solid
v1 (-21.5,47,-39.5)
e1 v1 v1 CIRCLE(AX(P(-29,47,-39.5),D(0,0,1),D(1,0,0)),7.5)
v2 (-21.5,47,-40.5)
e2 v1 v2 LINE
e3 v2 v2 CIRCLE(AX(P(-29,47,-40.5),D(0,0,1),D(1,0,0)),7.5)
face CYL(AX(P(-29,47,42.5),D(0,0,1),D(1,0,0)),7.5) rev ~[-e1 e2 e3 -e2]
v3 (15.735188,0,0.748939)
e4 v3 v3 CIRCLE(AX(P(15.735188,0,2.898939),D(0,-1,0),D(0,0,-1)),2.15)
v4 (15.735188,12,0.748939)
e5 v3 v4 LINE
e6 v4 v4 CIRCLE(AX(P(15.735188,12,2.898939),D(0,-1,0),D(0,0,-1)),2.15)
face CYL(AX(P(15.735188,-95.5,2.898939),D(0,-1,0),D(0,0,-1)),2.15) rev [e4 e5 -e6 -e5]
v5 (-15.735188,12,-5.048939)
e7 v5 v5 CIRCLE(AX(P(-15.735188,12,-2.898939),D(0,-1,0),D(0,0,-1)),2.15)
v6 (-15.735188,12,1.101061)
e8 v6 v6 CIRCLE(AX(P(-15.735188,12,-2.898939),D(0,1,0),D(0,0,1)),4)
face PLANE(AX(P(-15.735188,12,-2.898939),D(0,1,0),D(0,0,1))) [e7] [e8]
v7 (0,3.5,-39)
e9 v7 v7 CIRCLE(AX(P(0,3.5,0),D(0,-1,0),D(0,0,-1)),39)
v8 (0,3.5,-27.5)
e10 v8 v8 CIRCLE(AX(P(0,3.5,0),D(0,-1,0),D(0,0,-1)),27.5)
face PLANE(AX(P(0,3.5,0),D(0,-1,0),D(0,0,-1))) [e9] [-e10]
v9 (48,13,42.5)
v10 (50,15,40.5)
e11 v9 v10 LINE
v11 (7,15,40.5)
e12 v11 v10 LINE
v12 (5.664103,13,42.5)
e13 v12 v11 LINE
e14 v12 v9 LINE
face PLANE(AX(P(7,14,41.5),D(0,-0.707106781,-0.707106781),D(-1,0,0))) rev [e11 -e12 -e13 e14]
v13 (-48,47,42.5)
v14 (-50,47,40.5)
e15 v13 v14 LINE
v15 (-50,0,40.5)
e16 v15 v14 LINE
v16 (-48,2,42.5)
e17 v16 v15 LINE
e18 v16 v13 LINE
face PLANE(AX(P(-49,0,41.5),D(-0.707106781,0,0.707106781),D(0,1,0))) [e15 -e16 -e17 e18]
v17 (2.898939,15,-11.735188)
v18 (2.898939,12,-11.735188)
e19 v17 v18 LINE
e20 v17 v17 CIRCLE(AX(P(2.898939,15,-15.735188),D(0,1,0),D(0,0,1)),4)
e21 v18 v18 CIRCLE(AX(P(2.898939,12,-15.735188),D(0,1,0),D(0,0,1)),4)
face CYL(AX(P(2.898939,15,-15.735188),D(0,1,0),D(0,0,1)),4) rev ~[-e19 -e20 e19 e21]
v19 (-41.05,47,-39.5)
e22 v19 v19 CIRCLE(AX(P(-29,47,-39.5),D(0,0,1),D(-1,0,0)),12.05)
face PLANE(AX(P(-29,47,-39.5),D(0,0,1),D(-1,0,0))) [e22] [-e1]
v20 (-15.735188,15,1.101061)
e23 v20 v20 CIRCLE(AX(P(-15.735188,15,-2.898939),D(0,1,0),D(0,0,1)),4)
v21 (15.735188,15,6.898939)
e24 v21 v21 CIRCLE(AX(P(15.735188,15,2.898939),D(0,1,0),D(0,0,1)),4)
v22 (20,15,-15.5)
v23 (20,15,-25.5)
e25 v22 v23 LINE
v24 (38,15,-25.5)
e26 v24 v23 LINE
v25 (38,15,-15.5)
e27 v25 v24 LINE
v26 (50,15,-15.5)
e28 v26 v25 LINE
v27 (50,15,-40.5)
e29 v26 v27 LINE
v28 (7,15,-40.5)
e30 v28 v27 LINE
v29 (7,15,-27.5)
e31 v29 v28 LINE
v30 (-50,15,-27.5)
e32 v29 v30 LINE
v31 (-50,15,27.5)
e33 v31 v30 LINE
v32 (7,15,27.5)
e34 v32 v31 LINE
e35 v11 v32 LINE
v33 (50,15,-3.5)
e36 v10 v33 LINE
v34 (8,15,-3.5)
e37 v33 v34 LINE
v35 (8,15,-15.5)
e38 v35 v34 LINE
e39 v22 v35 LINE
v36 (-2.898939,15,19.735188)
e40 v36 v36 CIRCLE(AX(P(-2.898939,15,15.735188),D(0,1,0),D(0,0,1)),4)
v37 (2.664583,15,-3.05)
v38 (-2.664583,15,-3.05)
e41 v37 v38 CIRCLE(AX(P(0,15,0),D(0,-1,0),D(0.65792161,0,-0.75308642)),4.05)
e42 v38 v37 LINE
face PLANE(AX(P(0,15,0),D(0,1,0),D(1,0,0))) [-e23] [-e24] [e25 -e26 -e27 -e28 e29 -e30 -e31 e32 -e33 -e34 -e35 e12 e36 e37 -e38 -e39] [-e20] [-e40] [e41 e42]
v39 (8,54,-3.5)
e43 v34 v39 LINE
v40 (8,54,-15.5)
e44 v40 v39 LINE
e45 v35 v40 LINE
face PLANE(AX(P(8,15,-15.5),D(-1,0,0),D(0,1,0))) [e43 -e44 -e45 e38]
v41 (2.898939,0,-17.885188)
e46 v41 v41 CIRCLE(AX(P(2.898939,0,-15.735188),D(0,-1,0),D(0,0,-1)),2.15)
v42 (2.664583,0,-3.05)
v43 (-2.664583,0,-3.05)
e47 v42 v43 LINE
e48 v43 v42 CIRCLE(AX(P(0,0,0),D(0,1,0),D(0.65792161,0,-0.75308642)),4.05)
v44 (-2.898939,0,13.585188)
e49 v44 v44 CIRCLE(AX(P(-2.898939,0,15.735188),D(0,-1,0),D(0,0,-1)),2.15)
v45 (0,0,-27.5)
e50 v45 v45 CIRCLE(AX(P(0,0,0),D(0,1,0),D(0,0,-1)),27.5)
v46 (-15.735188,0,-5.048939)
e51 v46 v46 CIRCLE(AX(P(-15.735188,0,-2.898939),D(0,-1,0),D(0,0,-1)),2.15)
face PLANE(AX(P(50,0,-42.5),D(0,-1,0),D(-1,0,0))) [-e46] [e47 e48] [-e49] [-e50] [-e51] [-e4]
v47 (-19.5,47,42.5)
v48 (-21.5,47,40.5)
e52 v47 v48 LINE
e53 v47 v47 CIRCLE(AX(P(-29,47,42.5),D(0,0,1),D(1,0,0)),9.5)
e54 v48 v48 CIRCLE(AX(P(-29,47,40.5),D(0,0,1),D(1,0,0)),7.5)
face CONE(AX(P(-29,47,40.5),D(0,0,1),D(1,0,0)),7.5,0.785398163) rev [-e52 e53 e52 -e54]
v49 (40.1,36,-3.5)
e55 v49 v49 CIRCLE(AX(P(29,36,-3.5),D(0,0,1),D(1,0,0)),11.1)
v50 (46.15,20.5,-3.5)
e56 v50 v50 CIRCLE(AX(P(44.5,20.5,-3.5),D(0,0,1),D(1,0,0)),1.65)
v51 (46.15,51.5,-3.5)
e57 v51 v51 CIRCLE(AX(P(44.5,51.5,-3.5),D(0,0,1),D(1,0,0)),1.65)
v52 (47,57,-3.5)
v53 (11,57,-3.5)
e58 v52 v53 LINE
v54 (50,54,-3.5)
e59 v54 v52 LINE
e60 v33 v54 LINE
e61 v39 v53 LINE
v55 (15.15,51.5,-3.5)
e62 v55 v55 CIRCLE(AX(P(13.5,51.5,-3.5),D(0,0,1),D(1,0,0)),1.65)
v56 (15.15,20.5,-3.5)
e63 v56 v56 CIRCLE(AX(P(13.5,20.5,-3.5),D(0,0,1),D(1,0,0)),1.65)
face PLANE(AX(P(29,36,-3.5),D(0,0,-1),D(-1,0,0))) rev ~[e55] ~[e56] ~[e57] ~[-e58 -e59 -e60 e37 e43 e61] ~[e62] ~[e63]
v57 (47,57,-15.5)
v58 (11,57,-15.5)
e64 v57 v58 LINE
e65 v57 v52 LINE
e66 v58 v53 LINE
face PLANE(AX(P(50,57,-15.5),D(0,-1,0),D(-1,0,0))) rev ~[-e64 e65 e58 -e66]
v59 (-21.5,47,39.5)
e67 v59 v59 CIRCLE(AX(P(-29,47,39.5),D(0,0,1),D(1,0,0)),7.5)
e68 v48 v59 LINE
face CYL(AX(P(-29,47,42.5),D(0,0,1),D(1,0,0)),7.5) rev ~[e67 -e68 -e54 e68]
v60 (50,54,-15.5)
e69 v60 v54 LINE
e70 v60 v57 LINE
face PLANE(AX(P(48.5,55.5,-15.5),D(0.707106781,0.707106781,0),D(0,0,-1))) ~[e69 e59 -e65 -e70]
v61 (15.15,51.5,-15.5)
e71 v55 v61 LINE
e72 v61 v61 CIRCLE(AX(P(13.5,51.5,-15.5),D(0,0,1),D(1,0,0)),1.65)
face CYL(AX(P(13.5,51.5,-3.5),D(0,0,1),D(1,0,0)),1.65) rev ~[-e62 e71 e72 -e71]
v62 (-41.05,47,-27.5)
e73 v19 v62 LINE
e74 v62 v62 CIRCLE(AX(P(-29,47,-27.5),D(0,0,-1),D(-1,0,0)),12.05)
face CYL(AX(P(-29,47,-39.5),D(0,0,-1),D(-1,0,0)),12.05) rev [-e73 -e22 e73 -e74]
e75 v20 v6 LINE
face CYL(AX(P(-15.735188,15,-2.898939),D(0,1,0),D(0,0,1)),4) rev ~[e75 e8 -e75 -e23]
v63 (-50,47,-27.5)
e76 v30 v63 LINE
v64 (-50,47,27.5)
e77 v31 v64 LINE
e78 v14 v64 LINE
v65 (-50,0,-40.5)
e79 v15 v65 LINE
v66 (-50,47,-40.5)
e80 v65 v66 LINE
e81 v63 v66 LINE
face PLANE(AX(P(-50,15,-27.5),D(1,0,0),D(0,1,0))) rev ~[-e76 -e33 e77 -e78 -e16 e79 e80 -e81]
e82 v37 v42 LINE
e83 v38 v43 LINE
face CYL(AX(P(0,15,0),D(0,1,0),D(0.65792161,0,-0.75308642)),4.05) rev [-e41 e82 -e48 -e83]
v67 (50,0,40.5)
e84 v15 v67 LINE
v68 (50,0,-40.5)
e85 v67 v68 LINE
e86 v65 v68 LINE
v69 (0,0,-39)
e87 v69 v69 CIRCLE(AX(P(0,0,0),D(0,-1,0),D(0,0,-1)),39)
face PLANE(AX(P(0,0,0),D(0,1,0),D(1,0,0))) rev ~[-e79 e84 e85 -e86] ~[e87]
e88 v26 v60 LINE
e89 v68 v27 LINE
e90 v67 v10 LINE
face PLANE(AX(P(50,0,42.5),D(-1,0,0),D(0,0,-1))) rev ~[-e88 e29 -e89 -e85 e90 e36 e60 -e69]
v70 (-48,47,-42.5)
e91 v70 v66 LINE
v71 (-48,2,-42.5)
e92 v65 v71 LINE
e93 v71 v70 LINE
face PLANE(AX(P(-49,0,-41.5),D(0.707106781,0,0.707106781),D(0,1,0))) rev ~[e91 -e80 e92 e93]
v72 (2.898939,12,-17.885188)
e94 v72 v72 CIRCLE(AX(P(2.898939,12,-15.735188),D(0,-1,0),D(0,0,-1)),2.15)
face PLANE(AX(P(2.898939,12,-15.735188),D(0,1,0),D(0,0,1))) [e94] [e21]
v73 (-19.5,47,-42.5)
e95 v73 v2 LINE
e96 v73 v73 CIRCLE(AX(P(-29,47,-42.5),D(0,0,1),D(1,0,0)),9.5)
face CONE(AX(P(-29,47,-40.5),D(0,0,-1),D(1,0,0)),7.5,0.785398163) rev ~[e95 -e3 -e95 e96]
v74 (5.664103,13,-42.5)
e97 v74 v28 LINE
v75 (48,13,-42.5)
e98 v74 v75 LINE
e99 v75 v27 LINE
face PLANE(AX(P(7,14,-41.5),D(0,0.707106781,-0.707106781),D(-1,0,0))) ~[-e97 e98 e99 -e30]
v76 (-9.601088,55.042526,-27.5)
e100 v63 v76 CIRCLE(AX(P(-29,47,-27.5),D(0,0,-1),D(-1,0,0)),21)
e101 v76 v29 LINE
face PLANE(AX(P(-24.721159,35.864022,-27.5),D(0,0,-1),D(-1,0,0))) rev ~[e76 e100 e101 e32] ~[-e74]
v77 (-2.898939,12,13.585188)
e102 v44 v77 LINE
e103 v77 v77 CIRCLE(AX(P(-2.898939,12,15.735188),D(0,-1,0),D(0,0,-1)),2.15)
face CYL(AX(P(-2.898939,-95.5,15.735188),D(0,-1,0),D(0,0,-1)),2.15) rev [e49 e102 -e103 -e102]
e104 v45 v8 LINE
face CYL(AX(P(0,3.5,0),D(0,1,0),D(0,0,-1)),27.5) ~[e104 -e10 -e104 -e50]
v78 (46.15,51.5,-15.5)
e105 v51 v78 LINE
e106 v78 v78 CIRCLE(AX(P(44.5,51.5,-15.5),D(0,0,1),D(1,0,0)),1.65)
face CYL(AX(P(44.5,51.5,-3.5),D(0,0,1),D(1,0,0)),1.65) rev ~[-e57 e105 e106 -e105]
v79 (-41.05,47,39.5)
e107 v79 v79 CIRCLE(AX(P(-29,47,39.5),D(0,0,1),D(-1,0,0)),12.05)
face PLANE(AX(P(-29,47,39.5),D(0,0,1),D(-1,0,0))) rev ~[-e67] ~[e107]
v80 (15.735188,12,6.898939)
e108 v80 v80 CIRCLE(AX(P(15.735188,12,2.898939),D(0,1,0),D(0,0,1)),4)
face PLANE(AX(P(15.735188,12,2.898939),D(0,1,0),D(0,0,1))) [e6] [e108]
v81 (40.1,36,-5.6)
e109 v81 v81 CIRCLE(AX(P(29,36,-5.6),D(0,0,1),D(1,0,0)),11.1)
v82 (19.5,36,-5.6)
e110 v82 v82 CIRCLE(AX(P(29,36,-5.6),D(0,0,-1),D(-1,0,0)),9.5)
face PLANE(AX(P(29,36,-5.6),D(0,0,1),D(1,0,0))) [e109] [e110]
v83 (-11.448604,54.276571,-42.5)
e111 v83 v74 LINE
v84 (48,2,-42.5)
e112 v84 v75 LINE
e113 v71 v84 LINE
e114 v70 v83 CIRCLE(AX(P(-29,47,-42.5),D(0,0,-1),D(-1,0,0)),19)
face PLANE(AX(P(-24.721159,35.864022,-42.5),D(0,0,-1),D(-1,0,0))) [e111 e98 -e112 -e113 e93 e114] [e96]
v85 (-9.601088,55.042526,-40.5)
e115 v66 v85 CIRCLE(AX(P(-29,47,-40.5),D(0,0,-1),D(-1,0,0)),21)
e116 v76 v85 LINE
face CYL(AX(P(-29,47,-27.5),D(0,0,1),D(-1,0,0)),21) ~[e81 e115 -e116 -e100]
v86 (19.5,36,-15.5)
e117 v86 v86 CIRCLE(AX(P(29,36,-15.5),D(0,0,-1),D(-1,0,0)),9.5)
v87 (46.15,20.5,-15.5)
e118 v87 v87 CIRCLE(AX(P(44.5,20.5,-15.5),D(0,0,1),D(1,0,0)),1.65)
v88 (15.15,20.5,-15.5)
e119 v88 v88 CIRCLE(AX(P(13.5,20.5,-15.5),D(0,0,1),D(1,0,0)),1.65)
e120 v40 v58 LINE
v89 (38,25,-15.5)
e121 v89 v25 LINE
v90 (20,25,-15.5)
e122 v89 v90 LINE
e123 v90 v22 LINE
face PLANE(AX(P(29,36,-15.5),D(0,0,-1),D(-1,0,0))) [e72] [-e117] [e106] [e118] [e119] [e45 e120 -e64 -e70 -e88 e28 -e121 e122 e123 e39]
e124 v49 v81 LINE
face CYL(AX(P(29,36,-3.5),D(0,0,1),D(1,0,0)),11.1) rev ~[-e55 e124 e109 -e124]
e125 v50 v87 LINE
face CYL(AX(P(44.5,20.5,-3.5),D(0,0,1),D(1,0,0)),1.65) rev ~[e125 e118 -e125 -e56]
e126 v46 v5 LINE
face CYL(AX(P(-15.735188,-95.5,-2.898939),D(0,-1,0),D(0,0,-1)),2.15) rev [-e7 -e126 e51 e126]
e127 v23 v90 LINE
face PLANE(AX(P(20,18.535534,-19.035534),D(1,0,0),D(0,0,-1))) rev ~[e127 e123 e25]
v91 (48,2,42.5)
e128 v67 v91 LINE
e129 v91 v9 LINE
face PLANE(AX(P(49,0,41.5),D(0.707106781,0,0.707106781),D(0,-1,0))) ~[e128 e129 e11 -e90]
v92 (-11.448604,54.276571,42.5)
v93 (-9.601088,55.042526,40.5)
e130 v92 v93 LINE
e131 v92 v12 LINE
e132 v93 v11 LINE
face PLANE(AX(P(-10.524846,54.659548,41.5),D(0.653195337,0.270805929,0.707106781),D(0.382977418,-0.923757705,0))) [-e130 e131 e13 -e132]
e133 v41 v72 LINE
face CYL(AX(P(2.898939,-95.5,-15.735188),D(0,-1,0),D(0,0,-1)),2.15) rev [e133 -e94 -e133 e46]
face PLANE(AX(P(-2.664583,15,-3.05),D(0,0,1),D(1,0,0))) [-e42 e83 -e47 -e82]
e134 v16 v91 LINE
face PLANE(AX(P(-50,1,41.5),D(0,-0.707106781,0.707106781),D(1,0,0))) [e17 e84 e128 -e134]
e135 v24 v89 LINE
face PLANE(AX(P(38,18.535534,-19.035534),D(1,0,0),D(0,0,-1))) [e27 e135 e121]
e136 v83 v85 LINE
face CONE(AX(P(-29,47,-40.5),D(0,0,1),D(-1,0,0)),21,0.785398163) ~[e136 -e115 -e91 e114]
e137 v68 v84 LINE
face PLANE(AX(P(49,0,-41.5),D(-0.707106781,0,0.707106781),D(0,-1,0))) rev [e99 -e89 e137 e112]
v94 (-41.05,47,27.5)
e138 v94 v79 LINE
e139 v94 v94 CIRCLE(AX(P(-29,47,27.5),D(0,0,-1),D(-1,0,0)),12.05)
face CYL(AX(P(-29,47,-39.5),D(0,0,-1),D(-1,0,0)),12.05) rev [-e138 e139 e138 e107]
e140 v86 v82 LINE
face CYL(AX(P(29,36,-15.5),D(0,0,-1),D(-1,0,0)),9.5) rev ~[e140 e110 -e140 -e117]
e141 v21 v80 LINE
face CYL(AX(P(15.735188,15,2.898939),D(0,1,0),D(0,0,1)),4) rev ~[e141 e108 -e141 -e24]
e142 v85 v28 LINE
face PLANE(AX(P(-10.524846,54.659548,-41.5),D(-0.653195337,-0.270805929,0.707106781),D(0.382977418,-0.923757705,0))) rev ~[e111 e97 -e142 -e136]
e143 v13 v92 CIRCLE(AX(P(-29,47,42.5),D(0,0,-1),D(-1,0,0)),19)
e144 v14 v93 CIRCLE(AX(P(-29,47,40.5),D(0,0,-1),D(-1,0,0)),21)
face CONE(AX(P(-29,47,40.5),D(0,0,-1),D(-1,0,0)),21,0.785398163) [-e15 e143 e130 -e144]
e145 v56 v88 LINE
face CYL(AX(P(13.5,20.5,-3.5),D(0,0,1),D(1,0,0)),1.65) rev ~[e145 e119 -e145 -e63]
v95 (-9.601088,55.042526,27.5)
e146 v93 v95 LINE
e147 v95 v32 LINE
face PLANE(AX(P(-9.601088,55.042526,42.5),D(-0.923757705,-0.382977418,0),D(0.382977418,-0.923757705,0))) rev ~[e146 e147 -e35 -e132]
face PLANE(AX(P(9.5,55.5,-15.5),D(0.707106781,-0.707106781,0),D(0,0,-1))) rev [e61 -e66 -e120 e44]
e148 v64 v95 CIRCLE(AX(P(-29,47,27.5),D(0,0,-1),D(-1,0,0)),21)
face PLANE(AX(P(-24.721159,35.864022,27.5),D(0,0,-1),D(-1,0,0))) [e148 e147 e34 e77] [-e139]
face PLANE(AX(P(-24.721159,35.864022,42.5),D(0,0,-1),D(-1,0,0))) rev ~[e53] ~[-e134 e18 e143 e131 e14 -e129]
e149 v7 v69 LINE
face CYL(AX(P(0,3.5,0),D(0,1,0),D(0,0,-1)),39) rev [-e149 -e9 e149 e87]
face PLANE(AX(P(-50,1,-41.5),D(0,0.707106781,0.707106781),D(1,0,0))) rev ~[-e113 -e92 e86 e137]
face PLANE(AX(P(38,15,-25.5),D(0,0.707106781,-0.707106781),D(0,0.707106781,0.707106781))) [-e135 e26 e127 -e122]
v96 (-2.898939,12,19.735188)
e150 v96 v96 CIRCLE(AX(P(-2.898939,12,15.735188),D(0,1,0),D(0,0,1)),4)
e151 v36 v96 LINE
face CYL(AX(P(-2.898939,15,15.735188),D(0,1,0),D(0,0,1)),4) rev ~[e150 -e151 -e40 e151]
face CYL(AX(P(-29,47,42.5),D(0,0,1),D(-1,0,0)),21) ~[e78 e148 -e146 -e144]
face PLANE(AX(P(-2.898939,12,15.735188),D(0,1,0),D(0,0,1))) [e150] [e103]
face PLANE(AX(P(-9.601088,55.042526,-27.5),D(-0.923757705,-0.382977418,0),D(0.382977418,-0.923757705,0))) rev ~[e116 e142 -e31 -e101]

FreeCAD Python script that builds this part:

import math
import FreeCAD as App
import Part
import Sketcher
from FreeCAD import Vector
Q = App.Units.Quantity


def edges_at(feature, points):
    """Names of the edges that pass closest to the given points."""
    edges = feature.Shape.Edges
    near = lambda p: min(range(len(edges)), key=lambda i: edges[i].distToShape(Part.Vertex(*p))[0])
    return sorted({f"Edge{near(p) + 1}" for p in points})

doc = App.newDocument("Part")
params = doc.addObject("Spreadsheet::Sheet", "Params")
for row, (alias, value) in enumerate([
    ("sketch1_width", "100 mm"),
    ("sketch1_height", "85 mm"),
    ("pad1_length", "15 mm"),
    ("sketch2_radius", "21 mm"),
    ("sketch2_width", "57 mm"),
    ("sketch2_height", "32 mm"),
    ("pad2_length", "15 mm"),
    ("sketch3_width", "42 mm"),
    ("pad3_length", "12 mm"),
    ("chamfer_size", "3 mm"),
    ("sketch4_radius", "21 mm"),
    ("sketch4_width", "57 mm"),
    ("sketch4_height", "32 mm"),
    ("pad4_length", "15 mm"),
    ("sketch5_diameter", "55 mm"),
    ("pad5_length", "23 mm"),
    ("sketch6_diameter", "48 mm"),
    ("pad6_length", "7 mm"),
    ("sketch7_diameter", "25 mm"),
    ("pad7_length", "7 mm"),
    ("sketch8_diameter", "19 mm"),
    ("pocket1_length", "15 mm"),
    ("sketch9_diameter", "55 mm"),
    ("pad8_length", "2 mm"),
    ("sketch10_diameter", "24.1 mm"),
    ("pocket2_length", "39.5 mm"),
    ("pocket2_length2", "39.5 mm"),
    ("sketch11_diameter", "15 mm"),
    ("chamfer2_size", "2 mm"),
    ("chamfer3_size", "2 mm"),
    ("sketch12_diameter", "78 mm"),
    ("sketch12_diameter2", "55 mm"),
    ("pocket4_length", "3.5 mm"),
    ("sketch13_diameter", "3.3 mm"),
    ("sketch15_diameter", "4.3 mm"),
    ("sketch16_diameter", "8 mm"),
    ("pocket8_length", "3 mm"),
    ("sketch17_radius", "4.05 mm"),
    ("sketch18_diameter", "22.2 mm"),
    ("pocket10_length", "2.1 mm"),
    ("sketch19_width", "10 mm"),
    ("pad9_length", "18 mm"),
], start=1):
    params.set(f"A{row}", alias)
    params.set(f"B{row}", "=" + value)
    params.setAlias(f"B{row}", alias)

body = doc.addObject("PartDesign::Body", "Body")

sketch1 = body.newObject("Sketcher::SketchObject", "Sketch")
sketch1.AttachmentSupport = (doc.getObject("XZ_Plane"), [""])
sketch1.MapMode = "FlatFace"
sketch1.addGeometry(Part.LineSegment(Vector(-50, -42, 0), Vector(-50, 42, 0)), False)
sketch1.addGeometry(Part.LineSegment(Vector(-50, 42, 0), Vector(50, 42, 0)), False)
sketch1.addGeometry(Part.LineSegment(Vector(50, 42, 0), Vector(50, -42, 0)), False)
sketch1.addGeometry(Part.LineSegment(Vector(50, -42, 0), Vector(-50, -42, 0)), False)
sketch1.addConstraint(Sketcher.Constraint("Coincident", 0, 2, 1, 1))
sketch1.addConstraint(Sketcher.Constraint("Coincident", 1, 2, 2, 1))
sketch1.addConstraint(Sketcher.Constraint("Coincident", 2, 2, 3, 1))
sketch1.addConstraint(Sketcher.Constraint("Coincident", 3, 2, 0, 1))
sketch1.addConstraint(Sketcher.Constraint("Vertical", 0))
sketch1.addConstraint(Sketcher.Constraint("Horizontal", 1))
sketch1.addConstraint(Sketcher.Constraint("Vertical", 2))
sketch1.addConstraint(Sketcher.Constraint("Horizontal", 3))
sketch1.addConstraint(Sketcher.Constraint("Symmetric", 0, 2, 2, 2, -1, 1))
sketch1.addConstraint(Sketcher.Constraint("DistanceX", 1, 1, 1, 2, Q("100 mm")))
sketch1.addConstraint(Sketcher.Constraint("DistanceY", 0, 1, 0, 2, Q("85 mm")))
sketch1.setExpression("Constraints[9]", "Params.sketch1_width")
sketch1.setExpression("Constraints[10]", "Params.sketch1_height")
pad1 = body.newObject("PartDesign::Pad", "Pad")
pad1.Profile = sketch1
pad1.setExpression("Length", "Params.pad1_length")
pad1.Reversed = True

sketch2 = body.newObject("Sketcher::SketchObject", "Sketch001")
sketch2.AttachmentSupport = (doc.getObject("XY_Plane"), [""])
sketch2.MapMode = "FlatFace"
sketch2.AttachmentOffset = App.Placement(Vector(0, 0, 42.5), App.Rotation())
sketch2.addGeometry(Part.LineSegment(Vector(-50, 47, 0), Vector(-50, 15, 0)), False)
sketch2.addGeometry(Part.LineSegment(Vector(-50, 15, 0), Vector(7, 15, 0)), False)
sketch2.addGeometry(Part.LineSegment(Vector(7, 15, 0), Vector(-10, 55, 0)), False)
sketch2.addGeometry(Part.ArcOfCircle(Part.Circle(Vector(-29, 47, 0), Vector(0, 0, 1), 21), math.radians(23), math.radians(180)), False)
sketch2.addConstraint(Sketcher.Constraint("Coincident", 0, 2, 1, 1))
sketch2.addConstraint(Sketcher.Constraint("Coincident", 1, 2, 2, 1))
sketch2.addConstraint(Sketcher.Constraint("Tangent", 2, 2, 3, 1))
sketch2.addConstraint(Sketcher.Constraint("Tangent", 3, 2, 0, 1))
sketch2.addConstraint(Sketcher.Constraint("Vertical", 0))
sketch2.addConstraint(Sketcher.Constraint("Horizontal", 1))
sketch2.addConstraint(Sketcher.Constraint("Radius", 3, Q("21 mm")))
sketch2.addConstraint(Sketcher.Constraint("DistanceX", 1, 1, 1, 2, Q("57 mm")))
sketch2.addConstraint(Sketcher.Constraint("DistanceY", 0, 2, 0, 1, Q("32 mm")))
sketch2.addConstraint(Sketcher.Constraint("DistanceX", 3, 3, -1, 1, Q("29 mm")))
sketch2.addConstraint(Sketcher.Constraint("DistanceY", -1, 1, 3, 3, Q("47 mm")))
sketch2.setExpression("Constraints[6]", "Params.sketch2_radius")
sketch2.setExpression("Constraints[7]", "Params.sketch2_width")
sketch2.setExpression("Constraints[8]", "Params.sketch2_height")
pad2 = body.newObject("PartDesign::Pad", "Pad001")
pad2.Profile = sketch2
pad2.setExpression("Length", "Params.pad2_length")
pad2.Reversed = True

sketch3 = body.newObject("Sketcher::SketchObject", "Sketch002")
sketch3.AttachmentSupport = (doc.getObject("XY_Plane"), [""])
sketch3.MapMode = "FlatFace"
sketch3.AttachmentOffset = App.Placement(Vector(0, 0, -15.5), App.Rotation())
sketch3.addGeometry(Part.LineSegment(Vector(50, 57, 0), Vector(50, 15, 0)), False)
sketch3.addGeometry(Part.LineSegment(Vector(50, 15, 0), Vector(8, 15, 0)), False)
sketch3.addGeometry(Part.LineSegment(Vector(8, 15, 0), Vector(8, 57, 0)), False)
sketch3.addGeometry(Part.LineSegment(Vector(8, 57, 0), Vector(50, 57, 0)), False)
sketch3.addConstraint(Sketcher.Constraint("Coincident", 0, 2, 1, 1))
sketch3.addConstraint(Sketcher.Constraint("Coincident", 1, 2, 2, 1))
sketch3.addConstraint(Sketcher.Constraint("Coincident", 2, 2, 3, 1))
sketch3.addConstraint(Sketcher.Constraint("Coincident", 3, 2, 0, 1))
sketch3.addConstraint(Sketcher.Constraint("Vertical", 0))
sketch3.addConstraint(Sketcher.Constraint("Horizontal", 1))
sketch3.addConstraint(Sketcher.Constraint("Vertical", 2))
sketch3.addConstraint(Sketcher.Constraint("Horizontal", 3))
sketch3.addConstraint(Sketcher.Constraint("Equal", 3, 0))
sketch3.addConstraint(Sketcher.Constraint("DistanceX", 1, 2, 1, 1, Q("42 mm")))
sketch3.addConstraint(Sketcher.Constraint("DistanceX", -1, 1, 0, 2, Q("50 mm")))
sketch3.addConstraint(Sketcher.Constraint("DistanceY", -1, 1, 0, 2, Q("15 mm")))
sketch3.setExpression("Constraints[9]", "Params.sketch3_width")
pad3 = body.newObject("PartDesign::Pad", "Pad002")
pad3.Profile = sketch3
pad3.setExpression("Length", "Params.pad3_length")
doc.recompute()

chamfer = body.newObject("PartDesign::Chamfer", "Chamfer")
chamfer.Base = (pad3, edges_at(pad3, [(50, 57, -9.5), (8, 57, -9.5)]))
chamfer.setExpression("Size", "Params.chamfer_size")

sketch4 = body.newObject("Sketcher::SketchObject", "Sketch003")
sketch4.AttachmentSupport = (doc.getObject("XY_Plane"), [""])
sketch4.MapMode = "FlatFace"
sketch4.AttachmentOffset = App.Placement(Vector(0, 0, -27.5), App.Rotation())
sketch4.addGeometry(Part.LineSegment(Vector(7, 15, 0), Vector(-50, 15, 0)), False)
sketch4.addGeometry(Part.LineSegment(Vector(-50, 15, 0), Vector(-50, 47, 0)), False)
sketch4.addGeometry(Part.ArcOfCircle(Part.Circle(Vector(-29, 47, 0), Vector(0, 0, 1), 21), math.radians(23), math.radians(180)), False)
sketch4.addGeometry(Part.LineSegment(Vector(-10, 55, 0), Vector(7, 15, 0)), False)
sketch4.addConstraint(Sketcher.Constraint("Coincident", 0, 2, 1, 1))
sketch4.addConstraint(Sketcher.Constraint("Tangent", 1, 2, 2, 2))
sketch4.addConstraint(Sketcher.Constraint("Tangent", 2, 1, 3, 1))
sketch4.addConstraint(Sketcher.Constraint("Coincident", 3, 2, 0, 1))
sketch4.addConstraint(Sketcher.Constraint("Horizontal", 0))
sketch4.addConstraint(Sketcher.Constraint("Vertical", 1))
sketch4.addConstraint(Sketcher.Constraint("Radius", 2, Q("21 mm")))
sketch4.addConstraint(Sketcher.Constraint("DistanceX", 0, 2, 0, 1, Q("57 mm")))
sketch4.addConstraint(Sketcher.Constraint("DistanceY", 1, 1, 1, 2, Q("32 mm")))
sketch4.addConstraint(Sketcher.Constraint("DistanceX", 2, 3, -1, 1, Q("29 mm")))
sketch4.addConstraint(Sketcher.Constraint("DistanceY", -1, 1, 2, 3, Q("47 mm")))
sketch4.setExpression("Constraints[6]", "Params.sketch4_radius")
sketch4.setExpression("Constraints[7]", "Params.sketch4_width")
sketch4.setExpression("Constraints[8]", "Params.sketch4_height")
pad4 = body.newObject("PartDesign::Pad", "Pad003")
pad4.Profile = sketch4
pad4.setExpression("Length", "Params.pad4_length")
pad4.Reversed = True

sketch5 = body.newObject("Sketcher::SketchObject", "Sketch004")
sketch5.AttachmentSupport = (doc.getObject("XZ_Plane"), [""])
sketch5.MapMode = "FlatFace"
sketch5.addGeometry(Part.Circle(Vector(0, 0, 0), Vector(0, 0, 1), 28), False)
sketch5.addConstraint(Sketcher.Constraint("Coincident", 0, 3, -1, 1))
sketch5.addConstraint(Sketcher.Constraint("Diameter", 0, Q("55 mm")))
sketch5.setExpression("Constraints[1]", "Params.sketch5_diameter")
pad5 = body.newObject("PartDesign::Pad", "Pad004")
pad5.Profile = sketch5
pad5.setExpression("Length", "Params.pad5_length")

sketch6 = body.newObject("Sketcher::SketchObject", "Sketch005")
sketch6.AttachmentSupport = (doc.getObject("XZ_Plane"), [""])
sketch6.MapMode = "FlatFace"
sketch6.AttachmentOffset = App.Placement(Vector(0, 0, 23), App.Rotation())
sketch6.addGeometry(Part.Circle(Vector(0, 0, 0), Vector(0, 0, 1), 24), False)
sketch6.addConstraint(Sketcher.Constraint("Coincident", 0, 3, -1, 1))
sketch6.addConstraint(Sketcher.Constraint("Diameter", 0, Q("48 mm")))
sketch6.setExpression("Constraints[1]", "Params.sketch6_diameter")
pad6 = body.newObject("PartDesign::Pad", "Pad005")
pad6.Profile = sketch6
pad6.setExpression("Length", "Params.pad6_length")

sketch7 = body.newObject("Sketcher::SketchObject", "Sketch006")
sketch7.AttachmentSupport = (doc.getObject("XZ_Plane"), [""])
sketch7.MapMode = "FlatFace"
sketch7.AttachmentOffset = App.Placement(Vector(0, 0, 30), App.Rotation())
sketch7.addGeometry(Part.Circle(Vector(0, 0, 0), Vector(0, 0, 1), 12), False)
sketch7.addConstraint(Sketcher.Constraint("Coincident", 0, 3, -1, 1))
sketch7.addConstraint(Sketcher.Constraint("Diameter", 0, Q("25 mm")))
sketch7.setExpression("Constraints[1]", "Params.sketch7_diameter")
pad7 = body.newObject("PartDesign::Pad", "Pad006")
pad7.Profile = sketch7
pad7.setExpression("Length", "Params.pad7_length")

sketch8 = body.newObject("Sketcher::SketchObject", "Sketch007")
sketch8.AttachmentSupport = (doc.getObject("XY_Plane"), [""])
sketch8.MapMode = "FlatFace"
sketch8.AttachmentOffset = App.Placement(Vector(0, 0, -15.5), App.Rotation())
sketch8.addGeometry(Part.Circle(Vector(29, 36, 0), Vector(0, 0, 1), 10), False)
sketch8.addConstraint(Sketcher.Constraint("Diameter", 0, Q("19 mm")))
sketch8.addConstraint(Sketcher.Constraint("DistanceX", -1, 1, 0, 3, Q("29 mm")))
sketch8.addConstraint(Sketcher.Constraint("DistanceY", -1, 1, 0, 3, Q("36 mm")))
sketch8.setExpression("Constraints[0]", "Params.sketch8_diameter")
pocket1 = body.newObject("PartDesign::Pocket", "Pocket")
pocket1.Profile = sketch8
pocket1.setExpression("Length", "Params.pocket1_length")
pocket1.Reversed = True

sketch9 = body.newObject("Sketcher::SketchObject", "Sketch008")
sketch9.AttachmentSupport = (doc.getObject("XZ_Plane"), [""])
sketch9.MapMode = "FlatFace"
sketch9.AttachmentOffset = App.Placement(Vector(0, 0, 30), App.Rotation())
sketch9.addGeometry(Part.Circle(Vector(0, 0, 0), Vector(0, 0, 1), 28), False)
sketch9.addConstraint(Sketcher.Constraint("Coincident", 0, 3, -1, 1))
sketch9.addConstraint(Sketcher.Constraint("Diameter", 0, Q("55 mm")))
sketch9.setExpression("Constraints[1]", "Params.sketch9_diameter")
pad8 = body.newObject("PartDesign::Pad", "Pad007")
pad8.Profile = sketch9
pad8.setExpression("Length", "Params.pad8_length")

sketch10 = body.newObject("Sketcher::SketchObject", "Sketch009")
sketch10.AttachmentSupport = (doc.getObject("XY_Plane"), [""])
sketch10.MapMode = "FlatFace"
sketch10.addGeometry(Part.Circle(Vector(-29, 47, 0), Vector(0, 0, 1), 12), False)
sketch10.addConstraint(Sketcher.Constraint("Diameter", 0, Q("24.1 mm")))
sketch10.addConstraint(Sketcher.Constraint("DistanceX", 0, 3, -1, 1, Q("29 mm")))
sketch10.addConstraint(Sketcher.Constraint("DistanceY", -1, 1, 0, 3, Q("47 mm")))
sketch10.setExpression("Constraints[0]", "Params.sketch10_diameter")
pocket2 = body.newObject("PartDesign::Pocket", "Pocket001")
pocket2.Profile = sketch10
pocket2.Type = "TwoLengths"
pocket2.setExpression("Length", "Params.pocket2_length")
pocket2.setExpression("Length2", "Params.pocket2_length2")
pocket2.Reversed = True

sketch11 = body.newObject("Sketcher::SketchObject", "Sketch010")
sketch11.AttachmentSupport = (doc.getObject("XY_Plane"), [""])
sketch11.MapMode = "FlatFace"
sketch11.AttachmentOffset = App.Placement(Vector(0, 0, 42.5), App.Rotation())
sketch11.addGeometry(Part.Circle(Vector(-29, 47, 0), Vector(0, 0, 1), 8), False)
sketch11.addConstraint(Sketcher.Constraint("Diameter", 0, Q("15 mm")))
sketch11.addConstraint(Sketcher.Constraint("DistanceX", 0, 3, -1, 1, Q("29 mm")))
sketch11.addConstraint(Sketcher.Constraint("DistanceY", -1, 1, 0, 3, Q("47 mm")))
sketch11.setExpression("Constraints[0]", "Params.sketch11_diameter")
pocket3 = body.newObject("PartDesign::Pocket", "Pocket002")
pocket3.Profile = sketch11
pocket3.Type = "ThroughAll"
doc.recompute()

chamfer2 = body.newObject("PartDesign::Chamfer", "Chamfer001")
chamfer2.Base = (pocket3, edges_at(pocket3, [
    (-36.5, 47, 42.5),
    (28.5, 15, 42.5),
    (-1.301, 35.021, 42.5),
    (-33.1, 67.596, 42.5),
    (0, 0, 42.5),
    (50, 7.5, 42.5),
    (-50, 23.5, 42.5),
]))
chamfer2.setExpression("Size", "Params.chamfer2_size")
doc.recompute()

chamfer3 = body.newObject("PartDesign::Chamfer", "Chamfer002")
chamfer3.Base = (chamfer2, edges_at(chamfer2, [
    (0, 0, -42.5),
    (-1.301, 35.021, -42.5),
    (-33.1, 67.596, -42.5),
    (28.5, 15, -42.5),
    (-50, 23.5, -42.5),
    (50, 7.5, -42.5),
    (-36.5, 47, -42.5),
]))
chamfer3.setExpression("Size", "Params.chamfer3_size")

sketch12 = body.newObject("Sketcher::SketchObject", "Sketch011")
sketch12.AttachmentSupport = (doc.getObject("XZ_Plane"), [""])
sketch12.MapMode = "FlatFace"
sketch12.AttachmentOffset = App.Placement(Vector(0, 0, -3.5), App.Rotation())
sketch12.addGeometry(Part.Circle(Vector(0, 0, 0), Vector(0, 0, 1), 39), False)
sketch12.addGeometry(Part.Circle(Vector(0, 0, 0), Vector(0, 0, 1), 28), False)
sketch12.addConstraint(Sketcher.Constraint("Coincident", 0, 3, -1, 1))
sketch12.addConstraint(Sketcher.Constraint("Coincident", 1, 3, -1, 1))
sketch12.addConstraint(Sketcher.Constraint("Diameter", 0, Q("78 mm")))
sketch12.addConstraint(Sketcher.Constraint("Diameter", 1, Q("55 mm")))
sketch12.setExpression("Constraints[2]", "Params.sketch12_diameter")
sketch12.setExpression("Constraints[3]", "Params.sketch12_diameter2")
pocket4 = body.newObject("PartDesign::Pocket", "Pocket003")
pocket4.Profile = sketch12
pocket4.setExpression("Length", "Params.pocket4_length")
pocket4.Reversed = True

sketch13 = body.newObject("Sketcher::SketchObject", "Sketch012")
sketch13.AttachmentSupport = (doc.getObject("XY_Plane"), [""])
sketch13.MapMode = "FlatFace"
sketch13.AttachmentOffset = App.Placement(Vector(0, 0, -3.5), App.Rotation())
sketch13.addGeometry(Part.Circle(Vector(44.5, 51.5, 0), Vector(0, 0, 1), 1.6), False)
sketch13.addGeometry(Part.Circle(Vector(13.5, 51.5, 0), Vector(0, 0, 1), 1.6), False)
sketch13.addGeometry(Part.Circle(Vector(13.5, 20.5, 0), Vector(0, 0, 1), 1.6), False)
sketch13.addGeometry(Part.Circle(Vector(44.5, 20.5, 0), Vector(0, 0, 1), 1.6), False)
sketch13.addConstraint(Sketcher.Constraint("Equal", 0, 1))
sketch13.addConstraint(Sketcher.Constraint("Equal", 1, 2))
sketch13.addConstraint(Sketcher.Constraint("Equal", 2, 3))
sketch13.addConstraint(Sketcher.Constraint("Horizontal", 0, 3, 1, 3))
sketch13.addConstraint(Sketcher.Constraint("Horizontal", 2, 3, 3, 3))
sketch13.addConstraint(Sketcher.Constraint("Vertical", 1, 3, 2, 3))
sketch13.addConstraint(Sketcher.Constraint("Vertical", 0, 3, 3, 3))
sketch13.addConstraint(Sketcher.Constraint("Diameter", 0, Q("3.3 mm")))
sketch13.addConstraint(Sketcher.Constraint("DistanceX", 1, 3, 0, 3, Q("31 mm")))
sketch13.addConstraint(Sketcher.Constraint("DistanceY", 2, 3, 1, 3, Q("31 mm")))
sketch13.addConstraint(Sketcher.Constraint("DistanceX", -1, 1, 0, 3, Q("44.5 mm")))
sketch13.addConstraint(Sketcher.Constraint("DistanceY", -1, 1, 0, 3, Q("51.5 mm")))
sketch13.setExpression("Constraints[7]", "Params.sketch13_diameter")
pocket5 = body.newObject("PartDesign::Pocket", "Pocket004")
pocket5.Profile = sketch13
pocket5.Type = "ThroughAll"

sketch14 = body.newObject("Sketcher::SketchObject", "Sketch013")
sketch14.AttachmentSupport = (doc.getObject("XY_Plane"), [""])
sketch14.MapMode = "FlatFace"
sketch14.AttachmentOffset = App.Placement(Vector(0, 0, -42.5), App.Rotation())
sketch14.addGeometry(Part.LineSegment(Vector(50, 0, 0), Vector(50, -44, 0)), False)
sketch14.addGeometry(Part.LineSegment(Vector(50, -44, 0), Vector(-55, -44, 0)), False)
sketch14.addGeometry(Part.LineSegment(Vector(-55, -44, 0), Vector(-55, 0, 0)), False)
sketch14.addGeometry(Part.LineSegment(Vector(-55, 0, 0), Vector(50, 0, 0)), False)
sketch14.addConstraint(Sketcher.Constraint("Coincident", 0, 2, 1, 1))
sketch14.addConstraint(Sketcher.Constraint("Coincident", 1, 2, 2, 1))
sketch14.addConstraint(Sketcher.Constraint("Coincident", 2, 2, 3, 1))
sketch14.addConstraint(Sketcher.Constraint("Coincident", 3, 2, 0, 1))
sketch14.addConstraint(Sketcher.Constraint("Vertical", 0))
sketch14.addConstraint(Sketcher.Constraint("Horizontal", 1))
sketch14.addConstraint(Sketcher.Constraint("Vertical", 2))
sketch14.addConstraint(Sketcher.Constraint("Horizontal", 3))
sketch14.addConstraint(Sketcher.Constraint("PointOnObject", 2, 2, -1))
sketch14.addConstraint(Sketcher.Constraint("DistanceX", -1, 1, 0, 2, Q("50 mm")))
sketch14.addConstraint(Sketcher.Constraint("DistanceX", 1, 2, 1, 1, Q("105.44155 mm")))
sketch14.addConstraint(Sketcher.Constraint("DistanceY", 0, 2, 0, 1, Q("43.677503 mm")))
pocket6 = body.newObject("PartDesign::Pocket", "Pocket005")
pocket6.Profile = sketch14
pocket6.Type = "ThroughAll"
pocket6.Reversed = True

sketch15 = body.newObject("Sketcher::SketchObject", "Sketch014")
sketch15.AttachmentSupport = (doc.getObject("XZ_Plane"), [""])
sketch15.MapMode = "FlatFace"
sketch15.addGeometry(Part.Circle(Vector(-2.9, 15.7, 0), Vector(0, 0, 1), 2.1), False)
sketch15.addGeometry(Part.Circle(Vector(-15.7, -2.9, 0), Vector(0, 0, 1), 2.1), False)
sketch15.addGeometry(Part.Circle(Vector(2.9, -15.7, 0), Vector(0, 0, 1), 2.1), False)
sketch15.addGeometry(Part.Circle(Vector(15.7, 2.9, 0), Vector(0, 0, 1), 2.1), False)
sketch15.addConstraint(Sketcher.Constraint("Equal", 0, 1))
sketch15.addConstraint(Sketcher.Constraint("Equal", 1, 2))
sketch15.addConstraint(Sketcher.Constraint("Equal", 2, 3))
sketch15.addConstraint(Sketcher.Constraint("Symmetric", 0, 3, 2, 3, -1, 1))
sketch15.addConstraint(Sketcher.Constraint("Symmetric", 1, 3, 3, 3, -1, 1))
sketch15.addConstraint(Sketcher.Constraint("Diameter", 0, Q("4.3 mm")))
sketch15.addConstraint(Sketcher.Constraint("DistanceX", 0, 3, -1, 1, Q("2.898939 mm")))
sketch15.addConstraint(Sketcher.Constraint("DistanceY", -1, 1, 0, 3, Q("15.735188 mm")))
sketch15.addConstraint(Sketcher.Constraint("DistanceX", 1, 3, -1, 1, Q("15.735188 mm")))
sketch15.addConstraint(Sketcher.Constraint("DistanceY", 1, 3, -1, 1, Q("2.898939 mm")))
sketch15.setExpression("Constraints[5]", "Params.sketch15_diameter")
pocket7 = body.newObject("PartDesign::Pocket", "Pocket006")
pocket7.Profile = sketch15
pocket7.Type = "ThroughAll"
pocket7.Midplane = True

sketch16 = body.newObject("Sketcher::SketchObject", "Sketch015")
sketch16.AttachmentSupport = (doc.getObject("XZ_Plane"), [""])
sketch16.MapMode = "FlatFace"
sketch16.AttachmentOffset = App.Placement(Vector(0, 0, -15), App.Rotation())
sketch16.addGeometry(Part.Circle(Vector(2.9, -15.7, 0), Vector(0, 0, 1), 4), False)
sketch16.addGeometry(Part.Circle(Vector(15.7, 2.9, 0), Vector(0, 0, 1), 4), False)
sketch16.addGeometry(Part.Circle(Vector(-2.9, 15.7, 0), Vector(0, 0, 1), 4), False)
sketch16.addGeometry(Part.Circle(Vector(-15.7, -2.9, 0), Vector(0, 0, 1), 4), False)
sketch16.addConstraint(Sketcher.Constraint("Equal", 0, 1))
sketch16.addConstraint(Sketcher.Constraint("Equal", 1, 2))
sketch16.addConstraint(Sketcher.Constraint("Equal", 2, 3))
sketch16.addConstraint(Sketcher.Constraint("Symmetric", 0, 3, 2, 3, -1, 1))
sketch16.addConstraint(Sketcher.Constraint("Symmetric", 1, 3, 3, 3, -1, 1))
sketch16.addConstraint(Sketcher.Constraint("Diameter", 0, Q("8 mm")))
sketch16.addConstraint(Sketcher.Constraint("DistanceX", -1, 1, 0, 3, Q("2.898939 mm")))
sketch16.addConstraint(Sketcher.Constraint("DistanceY", 0, 3, -1, 1, Q("15.735188 mm")))
sketch16.addConstraint(Sketcher.Constraint("DistanceX", -1, 1, 1, 3, Q("15.735188 mm")))
sketch16.addConstraint(Sketcher.Constraint("DistanceY", -1, 1, 1, 3, Q("2.898939 mm")))
sketch16.setExpression("Constraints[5]", "Params.sketch16_diameter")
pocket8 = body.newObject("PartDesign::Pocket", "Pocket007")
pocket8.Profile = sketch16
pocket8.setExpression("Length", "Params.pocket8_length")
pocket8.Reversed = True

sketch17 = body.newObject("Sketcher::SketchObject", "Sketch016")
sketch17.AttachmentSupport = (doc.getObject("XZ_Plane"), [""])
sketch17.MapMode = "FlatFace"
sketch17.AttachmentOffset = App.Placement(Vector(0, 0, -15), App.Rotation())
sketch17.addGeometry(Part.LineSegment(Vector(2.7, -3, 0), Vector(-2.7, -3, 0)), False)
sketch17.addGeometry(Part.ArcOfCircle(Part.Circle(Vector(0, 0, 0), Vector(0, 0, 1), 4), math.radians(-49), math.radians(229)), False)
sketch17.addConstraint(Sketcher.Constraint("Coincident", 0, 1, 1, 1))
sketch17.addConstraint(Sketcher.Constraint("Coincident", 1, 2, 0, 2))
sketch17.addConstraint(Sketcher.Constraint("Horizontal", 0))
sketch17.addConstraint(Sketcher.Constraint("Coincident", 1, 3, -1, 1))
sketch17.addConstraint(Sketcher.Constraint("Radius", 1, Q("4.05 mm")))
sketch17.addConstraint(Sketcher.Constraint("DistanceY", 0, 1, -1, 1, Q("3.05 mm")))
sketch17.setExpression("Constraints[4]", "Params.sketch17_radius")
pocket9 = body.newObject("PartDesign::Pocket", "Pocket008")
pocket9.Profile = sketch17
pocket9.Type = "ThroughAll"
pocket9.Reversed = True

sketch18 = body.newObject("Sketcher::SketchObject", "Sketch017")
sketch18.AttachmentSupport = (doc.getObject("XY_Plane"), [""])
sketch18.MapMode = "FlatFace"
sketch18.AttachmentOffset = App.Placement(Vector(0, 0, -3.5), App.Rotation())
sketch18.addGeometry(Part.Circle(Vector(29, 36, 0), Vector(0, 0, 1), 11), False)
sketch18.addConstraint(Sketcher.Constraint("Diameter", 0, Q("22.2 mm")))
sketch18.addConstraint(Sketcher.Constraint("DistanceX", -1, 1, 0, 3, Q("29 mm")))
sketch18.addConstraint(Sketcher.Constraint("DistanceY", -1, 1, 0, 3, Q("36 mm")))
sketch18.setExpression("Constraints[0]", "Params.sketch18_diameter")
pocket10 = body.newObject("PartDesign::Pocket", "Pocket009")
pocket10.Profile = sketch18
pocket10.setExpression("Length", "Params.pocket10_length")

sketch19 = body.newObject("Sketcher::SketchObject", "Sketch018")
sketch19.AttachmentSupport = (doc.getObject("YZ_Plane"), [""])
sketch19.MapMode = "FlatFace"
sketch19.AttachmentOffset = App.Placement(Vector(0, 0, 38), App.Rotation())
sketch19.addGeometry(Part.LineSegment(Vector(25, -16, 0), Vector(15, -16, 0)), False)
sketch19.addGeometry(Part.LineSegment(Vector(15, -16, 0), Vector(15, -26, 0)), False)
sketch19.addGeometry(Part.LineSegment(Vector(15, -26, 0), Vector(25, -16, 0)), False)
sketch19.addConstraint(Sketcher.Constraint("Coincident", 0, 2, 1, 1))
sketch19.addConstraint(Sketcher.Constraint("Coincident", 1, 2, 2, 1))
sketch19.addConstraint(Sketcher.Constraint("Coincident", 2, 2, 0, 1))
sketch19.addConstraint(Sketcher.Constraint("Horizontal", 0))
sketch19.addConstraint(Sketcher.Constraint("Vertical", 1))
sketch19.addConstraint(Sketcher.Constraint("Equal", 0, 1))
sketch19.addConstraint(Sketcher.Constraint("DistanceX", 0, 2, 0, 1, Q("10 mm")))
sketch19.addConstraint(Sketcher.Constraint("DistanceX", -1, 1, 0, 2, Q("15 mm")))
sketch19.addConstraint(Sketcher.Constraint("DistanceY", 0, 2, -1, 1, Q("15.5 mm")))
sketch19.setExpression("Constraints[6]", "Params.sketch19_width")
pad9 = body.newObject("PartDesign::Pad", "Pad008")
pad9.Profile = sketch19
pad9.setExpression("Length", "Params.pad9_length")
pad9.Reversed = True

doc.recompute()
